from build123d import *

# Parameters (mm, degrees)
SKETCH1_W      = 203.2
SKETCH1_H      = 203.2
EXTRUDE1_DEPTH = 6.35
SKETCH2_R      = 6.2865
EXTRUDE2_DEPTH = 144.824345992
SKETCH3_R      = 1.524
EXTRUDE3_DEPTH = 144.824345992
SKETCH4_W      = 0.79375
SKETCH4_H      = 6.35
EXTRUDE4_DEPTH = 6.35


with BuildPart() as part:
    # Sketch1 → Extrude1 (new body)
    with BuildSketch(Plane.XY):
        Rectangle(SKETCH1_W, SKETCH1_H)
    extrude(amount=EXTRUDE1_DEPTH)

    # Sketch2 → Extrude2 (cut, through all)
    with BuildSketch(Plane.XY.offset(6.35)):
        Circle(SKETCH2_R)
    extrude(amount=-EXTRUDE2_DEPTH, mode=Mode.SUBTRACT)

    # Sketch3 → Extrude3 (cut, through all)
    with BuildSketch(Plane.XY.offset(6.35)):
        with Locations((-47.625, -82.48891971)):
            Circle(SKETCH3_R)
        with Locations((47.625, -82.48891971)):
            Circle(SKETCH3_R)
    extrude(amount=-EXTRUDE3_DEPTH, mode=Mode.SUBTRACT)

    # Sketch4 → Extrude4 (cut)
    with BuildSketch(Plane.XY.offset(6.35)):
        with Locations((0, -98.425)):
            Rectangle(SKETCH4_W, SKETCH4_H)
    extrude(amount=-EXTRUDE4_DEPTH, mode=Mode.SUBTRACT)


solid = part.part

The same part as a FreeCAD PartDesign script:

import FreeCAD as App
import Part
import Sketcher

V = App.Vector
Q = App.Units.Quantity

doc = App.newDocument("Part")
body = doc.addObject("PartDesign::Body", "Body")

sketch1 = body.newObject("Sketcher::SketchObject", "Sketch")
sketch1.AttachmentSupport = (doc.getObject("XY_Plane"), [""])
sketch1.MapMode = "FlatFace"
sketch1.addGeometry(Part.LineSegment(V(-102, 102, 0), V(-102, -102, 0)), False)
sketch1.addGeometry(Part.LineSegment(V(-102, -102, 0), V(102, -102, 0)), False)
sketch1.addGeometry(Part.LineSegment(V(102, -102, 0), V(102, 102, 0)), False)
sketch1.addGeometry(Part.LineSegment(V(102, 102, 0), V(-102, 102, 0)), False)
sketch1.addConstraint(Sketcher.Constraint("Coincident", 0, 2, 1, 1))
sketch1.addConstraint(Sketcher.Constraint("Coincident", 1, 2, 2, 1))
sketch1.addConstraint(Sketcher.Constraint("Coincident", 2, 2, 3, 1))
sketch1.addConstraint(Sketcher.Constraint("Coincident", 3, 2, 0, 1))
sketch1.addConstraint(Sketcher.Constraint("Vertical", 0))
sketch1.addConstraint(Sketcher.Constraint("Horizontal", 1))
sketch1.addConstraint(Sketcher.Constraint("Vertical", 2))
sketch1.addConstraint(Sketcher.Constraint("Horizontal", 3))
sketch1.addConstraint(Sketcher.Constraint("Symmetric", 0, 2, 2, 2, -1, 1))
sketch1.addConstraint(Sketcher.Constraint("Equal", 3, 0))
sketch1.addConstraint(Sketcher.Constraint("DistanceX", 1, 1, 1, 2, Q("8 in")))
pad1 = body.newObject("PartDesign::Pad", "Pad")
pad1.Profile = sketch1
pad1.Length = Q("0.25 in")

sketch2 = body.newObject("Sketcher::SketchObject", "Sketch001")
sketch2.AttachmentSupport = (doc.getObject("XY_Plane"), [""])
sketch2.MapMode = "FlatFace"
sketch2.AttachmentOffset = App.Placement(V(0, 0, 0.25 * 25.4), App.Rotation())
sketch2.addGeometry(Part.Circle(V(0, 0, 0), V(0, 0, 1), 6), False)
sketch2.addConstraint(Sketcher.Constraint("Coincident", 0, 3, -1, 1))
sketch2.addConstraint(Sketcher.Constraint("Diameter", 0, Q("0.495 in")))
pocket1 = body.newObject("PartDesign::Pocket", "Pocket")
pocket1.Profile = sketch2
pocket1.Type = "ThroughAll"

sketch3 = body.newObject("Sketcher::SketchObject", "Sketch002")
sketch3.AttachmentSupport = (doc.getObject("XY_Plane"), [""])
sketch3.MapMode = "FlatFace"
sketch3.AttachmentOffset = App.Placement(V(0, 0, 0.25 * 25.4), App.Rotation())
sketch3.addGeometry(Part.Circle(V(-47.6, -82.5, 0), V(0, 0, 1), 1.5), False)
sketch3.addGeometry(Part.Circle(V(47.6, -82.5, 0), V(0, 0, 1), 1.5), False)
sketch3.addConstraint(Sketcher.Constraint("Equal", 0, 1))
sketch3.addConstraint(Sketcher.Constraint("Symmetric", 0, 3, 1, 3, -2))
sketch3.addConstraint(Sketcher.Constraint("Diameter", 0, Q("0.12 in")))
sketch3.addConstraint(Sketcher.Constraint("DistanceX", 0, 3, 1, 3, Q("3.75 in")))
sketch3.addConstraint(Sketcher.Constraint("DistanceY", 0, 3, -1, 1, 82.48892))
pocket2 = body.newObject("PartDesign::Pocket", "Pocket001")
pocket2.Profile = sketch3
pocket2.Type = "ThroughAll"

sketch4 = body.newObject("Sketcher::SketchObject", "Sketch003")
sketch4.AttachmentSupport = (doc.getObject("XY_Plane"), [""])
sketch4.MapMode = "FlatFace"
sketch4.AttachmentOffset = App.Placement(V(0, 0, 0.25 * 25.4), App.Rotation())
sketch4.addGeometry(Part.LineSegment(V(-0.4, -95.2, 0), V(-0.4, -101.6, 0)), False)
sketch4.addGeometry(Part.LineSegment(V(-0.4, -101.6, 0), V(0.4, -101.6, 0)), False)
sketch4.addGeometry(Part.LineSegment(V(0.4, -101.6, 0), V(0.4, -95.2, 0)), False)
sketch4.addGeometry(Part.LineSegment(V(0.4, -95.2, 0), V(-0.4, -95.2, 0)), False)
sketch4.addConstraint(Sketcher.Constraint("Coincident", 0, 2, 1, 1))
sketch4.addConstraint(Sketcher.Constraint("Coincident", 1, 2, 2, 1))
sketch4.addConstraint(Sketcher.Constraint("Coincident", 2, 2, 3, 1))
sketch4.addConstraint(Sketcher.Constraint("Coincident", 3, 2, 0, 1))
sketch4.addConstraint(Sketcher.Constraint("Vertical", 0))
sketch4.addConstraint(Sketcher.Constraint("Horizontal", 1))
sketch4.addConstraint(Sketcher.Constraint("Vertical", 2))
sketch4.addConstraint(Sketcher.Constraint("Horizontal", 3))
sketch4.addConstraint(Sketcher.Constraint("DistanceY", 0, 2, -1, 1, Q("4 in")))
sketch4.addConstraint(Sketcher.Constraint("DistanceY", 0, 2, 0, 1, Q("0.25 in")))
sketch4.addConstraint(Sketcher.Constraint("DistanceX", 1, 1, 1, 2, Q("0.03125 in")))
sketch4.addConstraint(Sketcher.Constraint("DistanceX", 0, 2, -1, 1, Q("0.015625 in")))
pocket3 = body.newObject("PartDesign::Pocket", "Pocket002")
pocket3.Profile = sketch4
pocket3.Length = Q("0.25 in")

doc.recompute()
